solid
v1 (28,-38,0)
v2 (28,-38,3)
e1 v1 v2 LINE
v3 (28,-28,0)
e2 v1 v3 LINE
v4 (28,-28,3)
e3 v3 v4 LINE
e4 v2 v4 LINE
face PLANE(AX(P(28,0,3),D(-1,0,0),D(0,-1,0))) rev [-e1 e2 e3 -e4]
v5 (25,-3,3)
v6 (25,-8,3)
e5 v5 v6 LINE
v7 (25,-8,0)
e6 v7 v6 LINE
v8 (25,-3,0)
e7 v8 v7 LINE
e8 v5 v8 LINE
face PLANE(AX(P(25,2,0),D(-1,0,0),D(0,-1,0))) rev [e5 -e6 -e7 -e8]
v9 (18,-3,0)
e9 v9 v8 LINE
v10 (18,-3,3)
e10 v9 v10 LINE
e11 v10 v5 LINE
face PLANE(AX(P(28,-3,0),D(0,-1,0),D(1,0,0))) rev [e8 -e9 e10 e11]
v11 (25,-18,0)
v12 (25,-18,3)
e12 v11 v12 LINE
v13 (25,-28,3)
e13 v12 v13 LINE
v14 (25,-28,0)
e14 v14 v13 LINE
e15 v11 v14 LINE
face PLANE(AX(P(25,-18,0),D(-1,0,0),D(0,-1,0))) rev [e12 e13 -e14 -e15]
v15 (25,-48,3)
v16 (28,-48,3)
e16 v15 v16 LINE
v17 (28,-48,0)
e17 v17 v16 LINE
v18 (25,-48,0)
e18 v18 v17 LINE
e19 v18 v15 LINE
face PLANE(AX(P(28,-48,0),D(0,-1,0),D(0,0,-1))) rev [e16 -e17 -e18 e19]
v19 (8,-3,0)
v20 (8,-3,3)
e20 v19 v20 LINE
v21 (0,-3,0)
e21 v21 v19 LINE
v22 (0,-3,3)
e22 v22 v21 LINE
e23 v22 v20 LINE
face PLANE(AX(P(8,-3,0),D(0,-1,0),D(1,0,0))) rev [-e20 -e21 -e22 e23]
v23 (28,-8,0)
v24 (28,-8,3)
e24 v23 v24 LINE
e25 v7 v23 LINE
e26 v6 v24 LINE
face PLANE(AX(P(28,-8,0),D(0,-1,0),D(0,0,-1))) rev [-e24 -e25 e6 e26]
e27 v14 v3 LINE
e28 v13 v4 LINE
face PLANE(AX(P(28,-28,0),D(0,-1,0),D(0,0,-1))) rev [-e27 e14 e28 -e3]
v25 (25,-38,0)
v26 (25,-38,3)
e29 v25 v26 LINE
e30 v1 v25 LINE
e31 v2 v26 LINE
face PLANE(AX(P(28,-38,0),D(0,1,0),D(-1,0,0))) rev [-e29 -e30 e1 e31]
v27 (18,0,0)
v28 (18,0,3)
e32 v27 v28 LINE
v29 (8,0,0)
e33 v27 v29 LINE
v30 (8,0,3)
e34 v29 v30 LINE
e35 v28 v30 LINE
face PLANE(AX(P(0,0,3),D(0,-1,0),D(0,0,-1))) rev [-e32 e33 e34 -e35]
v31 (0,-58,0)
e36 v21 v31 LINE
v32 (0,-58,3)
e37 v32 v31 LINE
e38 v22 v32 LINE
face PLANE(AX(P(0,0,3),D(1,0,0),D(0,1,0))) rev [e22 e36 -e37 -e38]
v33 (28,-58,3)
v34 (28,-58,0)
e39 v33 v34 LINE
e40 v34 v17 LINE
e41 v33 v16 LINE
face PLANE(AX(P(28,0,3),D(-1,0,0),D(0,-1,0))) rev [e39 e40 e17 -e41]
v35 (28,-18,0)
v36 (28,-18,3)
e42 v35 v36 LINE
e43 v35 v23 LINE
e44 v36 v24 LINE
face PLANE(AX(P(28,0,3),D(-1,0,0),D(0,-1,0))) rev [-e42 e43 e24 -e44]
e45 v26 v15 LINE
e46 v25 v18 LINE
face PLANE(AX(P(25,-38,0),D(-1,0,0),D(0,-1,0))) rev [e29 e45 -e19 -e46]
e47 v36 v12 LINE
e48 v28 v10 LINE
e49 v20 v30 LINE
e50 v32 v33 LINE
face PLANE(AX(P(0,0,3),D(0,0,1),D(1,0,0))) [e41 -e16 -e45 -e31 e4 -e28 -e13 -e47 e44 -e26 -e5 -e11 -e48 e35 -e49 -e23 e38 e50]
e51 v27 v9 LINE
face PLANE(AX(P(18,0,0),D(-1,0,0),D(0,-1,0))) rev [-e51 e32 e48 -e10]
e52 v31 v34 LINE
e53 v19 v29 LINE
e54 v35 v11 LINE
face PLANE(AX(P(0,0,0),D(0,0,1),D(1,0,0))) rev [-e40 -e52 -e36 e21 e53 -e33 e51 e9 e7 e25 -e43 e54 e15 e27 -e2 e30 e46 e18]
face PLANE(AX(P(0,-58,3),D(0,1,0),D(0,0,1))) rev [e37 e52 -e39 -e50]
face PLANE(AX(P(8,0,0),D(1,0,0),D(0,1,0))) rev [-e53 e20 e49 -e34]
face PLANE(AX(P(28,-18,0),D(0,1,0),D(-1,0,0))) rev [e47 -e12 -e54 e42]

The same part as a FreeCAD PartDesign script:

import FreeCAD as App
import Part
import Sketcher
from FreeCAD import Vector
Q = App.Units.Quantity

doc = App.newDocument("Part")
params = doc.addObject("Spreadsheet::Sheet", "Params")
for row, (alias, value) in enumerate([
    ("sketch1_width", "28 mm"),
    ("sketch1_height", "58 mm"),
    ("pad1_length", "3 mm"),
    ("sketch2_width", "10 mm"),
    ("sketch2_height", "3 mm"),
    ("pocket1_length", "3 mm"),
    ("linearpattern_pitch", "20 mm"),
    ("sketch3_width", "3 mm"),
    ("sketch3_height", "10 mm"),
    ("pocket2_length", "3 mm"),
    ("linearpattern2_pitch", "20 mm"),
], start=1):
    params.set(f"A{row}", alias)
    params.set(f"B{row}", "=" + value)
    params.setAlias(f"B{row}", alias)

body = doc.addObject("PartDesign::Body", "Body")

sketch1 = body.newObject("Sketcher::SketchObject", "Sketch")
sketch1.AttachmentSupport = (doc.getObject("XY_Plane"), [""])
sketch1.MapMode = "FlatFace"
sketch1.addGeometry([
    Part.LineSegment(Vector(0, 0, 0), Vector(0, -58, 0)),
    Part.LineSegment(Vector(0, -58, 0), Vector(28, -58, 0)),
    Part.LineSegment(Vector(28, -58, 0), Vector(28, 0, 0)),
    Part.LineSegment(Vector(28, 0, 0), Vector(0, 0, 0)),
], False)
sketch1.addConstraint([
    Sketcher.Constraint("Coincident", 0, 2, 1, 1),
    Sketcher.Constraint("Coincident", 1, 2, 2, 1),
    Sketcher.Constraint("Coincident", 2, 2, 3, 1),
    Sketcher.Constraint("Coincident", 3, 2, 0, 1),
    Sketcher.Constraint("Vertical", 0),
    Sketcher.Constraint("Horizontal", 1),
    Sketcher.Constraint("Vertical", 2),
    Sketcher.Constraint("Horizontal", 3),
    Sketcher.Constraint("Coincident", 3, 2, -1, 1),
    Sketcher.Constraint("DistanceX", 1, 1, 1, 2, Q("28 mm")),
    Sketcher.Constraint("DistanceY", 0, 2, 0, 1, Q("58 mm")),
])
sketch1.setExpression("Constraints[9]", "Params.sketch1_width")
sketch1.setExpression("Constraints[10]", "Params.sketch1_height")
pad1 = body.newObject("PartDesign::Pad", "Pad")
pad1.Profile = sketch1
pad1.setExpression("Length", "Params.pad1_length")

sketch2 = body.newObject("Sketcher::SketchObject", "Sketch001")
sketch2.AttachmentSupport = (doc.getObject("XY_Plane"), [""])
sketch2.MapMode = "FlatFace"
sketch2.AttachmentOffset = App.Placement(Vector(0, 0, 3), App.Rotation())
sketch2.addGeometry([
    Part.LineSegment(Vector(18, 0, 0), Vector(18, -3, 0)),
    Part.LineSegment(Vector(18, -3, 0), Vector(28, -3, 0)),
    Part.LineSegment(Vector(28, -3, 0), Vector(28, 0, 0)),
    Part.LineSegment(Vector(28, 0, 0), Vector(18, 0, 0)),
], False)
sketch2.addConstraint([
    Sketcher.Constraint("Coincident", 0, 2, 1, 1),
    Sketcher.Constraint("Coincident", 1, 2, 2, 1),
    Sketcher.Constraint("Coincident", 2, 2, 3, 1),
    Sketcher.Constraint("Coincident", 3, 2, 0, 1),
    Sketcher.Constraint("Vertical", 0),
    Sketcher.Constraint("Horizontal", 1),
    Sketcher.Constraint("Vertical", 2),
    Sketcher.Constraint("Horizontal", 3),
    Sketcher.Constraint("PointOnObject", 2, 2, -1),
    Sketcher.Constraint("DistanceX", 1, 1, 1, 2, Q("10 mm")),
    Sketcher.Constraint("DistanceY", 0, 2, 0, 1, Q("3 mm")),
    Sketcher.Constraint("DistanceX", -1, 1, 0, 2, Q("18 mm")),
])
sketch2.setExpression("Constraints[9]", "Params.sketch2_width")
sketch2.setExpression("Constraints[10]", "Params.sketch2_height")
pocket1 = body.newObject("PartDesign::Pocket", "Pocket")
pocket1.Profile = sketch2
pocket1.setExpression("Length", "Params.pocket1_length")
doc.recompute()

linearpattern = body.newObject("PartDesign::LinearPattern", "LinearPattern")
linearpattern.Originals = [pocket1]
linearpattern.Direction = (doc.getObject("X_Axis"), [""])
linearpattern.Mode = "offset"
linearpattern.setExpression("Offset", "Params.linearpattern_pitch")
linearpattern.Occurrences = 2
linearpattern.Reversed = True
body.Tip = linearpattern

sketch3 = body.newObject("Sketcher::SketchObject", "Sketch002")
sketch3.AttachmentSupport = (doc.getObject("XY_Plane"), [""])
sketch3.MapMode = "FlatFace"
sketch3.AttachmentOffset = App.Placement(Vector(0, 0, 3), App.Rotation())
sketch3.addGeometry([
    Part.LineSegment(Vector(25, -38, 0), Vector(25, -48, 0)),
    Part.LineSegment(Vector(25, -48, 0), Vector(28, -48, 0)),
    Part.LineSegment(Vector(28, -48, 0), Vector(28, -38, 0)),
    Part.LineSegment(Vector(28, -38, 0), Vector(25, -38, 0)),
], False)
sketch3.addConstraint([
    Sketcher.Constraint("Coincident", 0, 2, 1, 1),
    Sketcher.Constraint("Coincident", 1, 2, 2, 1),
    Sketcher.Constraint("Coincident", 2, 2, 3, 1),
    Sketcher.Constraint("Coincident", 3, 2, 0, 1),
    Sketcher.Constraint("Vertical", 0),
    Sketcher.Constraint("Horizontal", 1),
    Sketcher.Constraint("Vertical", 2),
    Sketcher.Constraint("Horizontal", 3),
    Sketcher.Constraint("DistanceX", 1, 1, 1, 2, Q("3 mm")),
    Sketcher.Constraint("DistanceY", 0, 2, 0, 1, Q("10 mm")),
    Sketcher.Constraint("DistanceX", -1, 1, 0, 2, Q("25 mm")),
    Sketcher.Constraint("DistanceY", 0, 2, -1, 1, Q("48 mm")),
])
sketch3.setExpression("Constraints[8]", "Params.sketch3_width")
sketch3.setExpression("Constraints[9]", "Params.sketch3_height")
pocket2 = body.newObject("PartDesign::Pocket", "Pocket001")
pocket2.Profile = sketch3
pocket2.setExpression("Length", "Params.pocket2_length")
doc.recompute()

linearpattern2 = body.newObject("PartDesign::LinearPattern", "LinearPattern001")
linearpattern2.Originals = [pocket2]
linearpattern2.Direction = (doc.getObject("Y_Axis"), [""])
linearpattern2.Mode = "offset"
linearpattern2.setExpression("Offset", "Params.linearpattern2_pitch")
linearpattern2.Occurrences = 3
body.Tip = linearpattern2

doc.recompute()
